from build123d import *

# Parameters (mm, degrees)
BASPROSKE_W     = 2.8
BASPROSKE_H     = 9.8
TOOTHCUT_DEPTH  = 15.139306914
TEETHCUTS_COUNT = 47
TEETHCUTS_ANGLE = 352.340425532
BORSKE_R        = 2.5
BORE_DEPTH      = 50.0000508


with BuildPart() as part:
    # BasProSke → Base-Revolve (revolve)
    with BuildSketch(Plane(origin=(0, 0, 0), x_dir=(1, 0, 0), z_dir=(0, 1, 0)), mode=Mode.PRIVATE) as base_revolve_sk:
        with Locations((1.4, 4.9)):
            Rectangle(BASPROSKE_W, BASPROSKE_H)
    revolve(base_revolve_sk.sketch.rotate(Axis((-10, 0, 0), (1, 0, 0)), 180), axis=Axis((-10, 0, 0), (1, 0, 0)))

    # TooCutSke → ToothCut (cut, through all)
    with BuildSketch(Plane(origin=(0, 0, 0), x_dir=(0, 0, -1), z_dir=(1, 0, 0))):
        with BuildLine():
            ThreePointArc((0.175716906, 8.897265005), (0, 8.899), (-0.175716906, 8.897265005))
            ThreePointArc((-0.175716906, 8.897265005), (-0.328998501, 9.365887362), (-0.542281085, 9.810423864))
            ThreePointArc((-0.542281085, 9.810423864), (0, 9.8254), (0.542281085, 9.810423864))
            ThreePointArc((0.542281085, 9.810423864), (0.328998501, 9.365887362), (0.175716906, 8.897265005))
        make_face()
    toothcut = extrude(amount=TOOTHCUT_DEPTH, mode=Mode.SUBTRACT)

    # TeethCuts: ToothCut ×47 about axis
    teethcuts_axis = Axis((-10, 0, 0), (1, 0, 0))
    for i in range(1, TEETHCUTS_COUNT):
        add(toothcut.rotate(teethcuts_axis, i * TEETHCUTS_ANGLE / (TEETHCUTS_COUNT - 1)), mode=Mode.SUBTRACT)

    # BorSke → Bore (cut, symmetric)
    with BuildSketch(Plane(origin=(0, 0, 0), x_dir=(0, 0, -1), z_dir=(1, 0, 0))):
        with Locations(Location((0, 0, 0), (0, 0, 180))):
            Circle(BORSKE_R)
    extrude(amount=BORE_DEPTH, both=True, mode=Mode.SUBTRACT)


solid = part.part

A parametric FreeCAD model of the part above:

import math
import FreeCAD as App
import Part
import Sketcher
from FreeCAD import Vector


def add_polygon(sketch, points):
    """Adds a closed chain of lines whose ends are joined by coincident constraints."""
    first, n = sketch.GeometryCount, len(points)
    for a, b in zip(points, points[1:] + points[:1]):
        sketch.addGeometry(Part.LineSegment(App.Vector(*a, 0), App.Vector(*b, 0)), False)
    for i in range(n):
        sketch.addConstraint(Sketcher.Constraint("Coincident", first + i, 2, first + (i + 1) % n, 1))

doc = App.newDocument("Part")
body = doc.addObject("PartDesign::Body", "Body")

# Sketch on XZ plane
sketch1 = body.newObject("Sketcher::SketchObject", "Sketch")
sketch1.AttachmentSupport = (doc.getObject("XZ_Plane"), [""])
sketch1.MapMode = "FlatFace"
add_polygon(sketch1, [(0, -9.8), (0, 0), (2.8, 0), (2.8, -9.8)])  # lines 0-3
sketch1.addConstraint(Sketcher.Constraint("Vertical", 0))
sketch1.addConstraint(Sketcher.Constraint("Horizontal", 1))
sketch1.addConstraint(Sketcher.Constraint("Vertical", 2))
sketch1.addConstraint(Sketcher.Constraint("Horizontal", 3))
sketch1.addConstraint(Sketcher.Constraint("Coincident", 0, 2, -1, 1))
sketch1.addConstraint(Sketcher.Constraint("DistanceX", 1, 1, 1, 2, 2.8))
sketch1.addConstraint(Sketcher.Constraint("DistanceY", 0, 1, 0, 2, 9.8))
revolution = body.newObject("PartDesign::Revolution", "Revolution")
revolution.Profile = sketch1
revolution.ReferenceAxis = (sketch1, ["H_Axis"])
revolution.Angle = 360

# Sketch on YZ plane
sketch2 = body.newObject("Sketcher::SketchObject", "Sketch001")
sketch2.AttachmentSupport = (doc.getObject("YZ_Plane"), [""])
sketch2.MapMode = "FlatFace"
sketch2.addGeometry(Part.ArcOfCircle(Part.Circle(Vector(0, 0, 0), Vector(0, 0, 1), 8.9), math.radians(-1.13), math.radians(1.13)), False)
sketch2.addGeometry(Part.ArcOfCircle(Part.Circle(Vector(7.97, -3.82, 0), Vector(0, 0, 1), 3.76), math.radians(60.61), math.radians(75.65)), False)
sketch2.addGeometry(Part.ArcOfCircle(Part.Circle(Vector(0, 0, 0), Vector(0, 0, 1), 9.83), math.radians(-3.16), math.radians(3.16)), False)
sketch2.addGeometry(Part.ArcOfCircle(Part.Circle(Vector(7.97, 3.82, 0), Vector(0, 0, 1), 3.76), math.radians(-75.65), math.radians(-60.61)), False)
sketch2.addConstraint(Sketcher.Constraint("Coincident", 0, 1, 1, 2))
sketch2.addConstraint(Sketcher.Constraint("Coincident", 1, 1, 2, 1))
sketch2.addConstraint(Sketcher.Constraint("Coincident", 2, 2, 3, 2))
sketch2.addConstraint(Sketcher.Constraint("Coincident", 3, 1, 0, 2))
sketch2.addConstraint(Sketcher.Constraint("Coincident", 0, 3, -1, 1))
sketch2.addConstraint(Sketcher.Constraint("Coincident", 2, 3, -1, 1))
sketch2.addConstraint(Sketcher.Constraint("Equal", 1, 3))
sketch2.addConstraint(Sketcher.Constraint("Symmetric", 1, 3, 3, 3, -1))
sketch2.addConstraint(Sketcher.Constraint("Radius", 1, 3.76))
sketch2.addConstraint(Sketcher.Constraint("Radius", 0, 8.899))
sketch2.addConstraint(Sketcher.Constraint("Radius", 2, 9.8254))
sketch2.addConstraint(Sketcher.Constraint("DistanceY", 1, 1, -1, 1, 0.542281))
sketch2.addConstraint(Sketcher.Constraint("DistanceY", 1, 3, 3, 3, 7.636709))
pocket1 = body.newObject("PartDesign::Pocket", "Pocket")
pocket1.Profile = sketch2
pocket1.Type = "ThroughAll"
pocket1.Reversed = True
doc.recompute()

polarpattern = body.newObject("PartDesign::PolarPattern", "PolarPattern")
polarpattern.Originals = [pocket1]
polarpattern.Axis = (doc.getObject("X_Axis"), [""])
polarpattern.Angle = 360
polarpattern.Occurrences = 47
body.Tip = polarpattern

# Sketch on YZ plane
sketch3 = body.newObject("Sketcher::SketchObject", "Sketch002")
sketch3.AttachmentSupport = (doc.getObject("YZ_Plane"), [""])
sketch3.MapMode = "FlatFace"
sketch3.addGeometry(Part.Circle(Vector(0, 0, 0), Vector(0, 0, 1), 2.5), False)
sketch3.addConstraint(Sketcher.Constraint("Coincident", 0, 3, -1, 1))
sketch3.addConstraint(Sketcher.Constraint("Diameter", 0, 5.0))
pocket2 = body.newObject("PartDesign::Pocket", "Pocket001")
pocket2.Profile = sketch3
pocket2.Length = 100.000102
pocket2.Midplane = True

doc.recompute()
